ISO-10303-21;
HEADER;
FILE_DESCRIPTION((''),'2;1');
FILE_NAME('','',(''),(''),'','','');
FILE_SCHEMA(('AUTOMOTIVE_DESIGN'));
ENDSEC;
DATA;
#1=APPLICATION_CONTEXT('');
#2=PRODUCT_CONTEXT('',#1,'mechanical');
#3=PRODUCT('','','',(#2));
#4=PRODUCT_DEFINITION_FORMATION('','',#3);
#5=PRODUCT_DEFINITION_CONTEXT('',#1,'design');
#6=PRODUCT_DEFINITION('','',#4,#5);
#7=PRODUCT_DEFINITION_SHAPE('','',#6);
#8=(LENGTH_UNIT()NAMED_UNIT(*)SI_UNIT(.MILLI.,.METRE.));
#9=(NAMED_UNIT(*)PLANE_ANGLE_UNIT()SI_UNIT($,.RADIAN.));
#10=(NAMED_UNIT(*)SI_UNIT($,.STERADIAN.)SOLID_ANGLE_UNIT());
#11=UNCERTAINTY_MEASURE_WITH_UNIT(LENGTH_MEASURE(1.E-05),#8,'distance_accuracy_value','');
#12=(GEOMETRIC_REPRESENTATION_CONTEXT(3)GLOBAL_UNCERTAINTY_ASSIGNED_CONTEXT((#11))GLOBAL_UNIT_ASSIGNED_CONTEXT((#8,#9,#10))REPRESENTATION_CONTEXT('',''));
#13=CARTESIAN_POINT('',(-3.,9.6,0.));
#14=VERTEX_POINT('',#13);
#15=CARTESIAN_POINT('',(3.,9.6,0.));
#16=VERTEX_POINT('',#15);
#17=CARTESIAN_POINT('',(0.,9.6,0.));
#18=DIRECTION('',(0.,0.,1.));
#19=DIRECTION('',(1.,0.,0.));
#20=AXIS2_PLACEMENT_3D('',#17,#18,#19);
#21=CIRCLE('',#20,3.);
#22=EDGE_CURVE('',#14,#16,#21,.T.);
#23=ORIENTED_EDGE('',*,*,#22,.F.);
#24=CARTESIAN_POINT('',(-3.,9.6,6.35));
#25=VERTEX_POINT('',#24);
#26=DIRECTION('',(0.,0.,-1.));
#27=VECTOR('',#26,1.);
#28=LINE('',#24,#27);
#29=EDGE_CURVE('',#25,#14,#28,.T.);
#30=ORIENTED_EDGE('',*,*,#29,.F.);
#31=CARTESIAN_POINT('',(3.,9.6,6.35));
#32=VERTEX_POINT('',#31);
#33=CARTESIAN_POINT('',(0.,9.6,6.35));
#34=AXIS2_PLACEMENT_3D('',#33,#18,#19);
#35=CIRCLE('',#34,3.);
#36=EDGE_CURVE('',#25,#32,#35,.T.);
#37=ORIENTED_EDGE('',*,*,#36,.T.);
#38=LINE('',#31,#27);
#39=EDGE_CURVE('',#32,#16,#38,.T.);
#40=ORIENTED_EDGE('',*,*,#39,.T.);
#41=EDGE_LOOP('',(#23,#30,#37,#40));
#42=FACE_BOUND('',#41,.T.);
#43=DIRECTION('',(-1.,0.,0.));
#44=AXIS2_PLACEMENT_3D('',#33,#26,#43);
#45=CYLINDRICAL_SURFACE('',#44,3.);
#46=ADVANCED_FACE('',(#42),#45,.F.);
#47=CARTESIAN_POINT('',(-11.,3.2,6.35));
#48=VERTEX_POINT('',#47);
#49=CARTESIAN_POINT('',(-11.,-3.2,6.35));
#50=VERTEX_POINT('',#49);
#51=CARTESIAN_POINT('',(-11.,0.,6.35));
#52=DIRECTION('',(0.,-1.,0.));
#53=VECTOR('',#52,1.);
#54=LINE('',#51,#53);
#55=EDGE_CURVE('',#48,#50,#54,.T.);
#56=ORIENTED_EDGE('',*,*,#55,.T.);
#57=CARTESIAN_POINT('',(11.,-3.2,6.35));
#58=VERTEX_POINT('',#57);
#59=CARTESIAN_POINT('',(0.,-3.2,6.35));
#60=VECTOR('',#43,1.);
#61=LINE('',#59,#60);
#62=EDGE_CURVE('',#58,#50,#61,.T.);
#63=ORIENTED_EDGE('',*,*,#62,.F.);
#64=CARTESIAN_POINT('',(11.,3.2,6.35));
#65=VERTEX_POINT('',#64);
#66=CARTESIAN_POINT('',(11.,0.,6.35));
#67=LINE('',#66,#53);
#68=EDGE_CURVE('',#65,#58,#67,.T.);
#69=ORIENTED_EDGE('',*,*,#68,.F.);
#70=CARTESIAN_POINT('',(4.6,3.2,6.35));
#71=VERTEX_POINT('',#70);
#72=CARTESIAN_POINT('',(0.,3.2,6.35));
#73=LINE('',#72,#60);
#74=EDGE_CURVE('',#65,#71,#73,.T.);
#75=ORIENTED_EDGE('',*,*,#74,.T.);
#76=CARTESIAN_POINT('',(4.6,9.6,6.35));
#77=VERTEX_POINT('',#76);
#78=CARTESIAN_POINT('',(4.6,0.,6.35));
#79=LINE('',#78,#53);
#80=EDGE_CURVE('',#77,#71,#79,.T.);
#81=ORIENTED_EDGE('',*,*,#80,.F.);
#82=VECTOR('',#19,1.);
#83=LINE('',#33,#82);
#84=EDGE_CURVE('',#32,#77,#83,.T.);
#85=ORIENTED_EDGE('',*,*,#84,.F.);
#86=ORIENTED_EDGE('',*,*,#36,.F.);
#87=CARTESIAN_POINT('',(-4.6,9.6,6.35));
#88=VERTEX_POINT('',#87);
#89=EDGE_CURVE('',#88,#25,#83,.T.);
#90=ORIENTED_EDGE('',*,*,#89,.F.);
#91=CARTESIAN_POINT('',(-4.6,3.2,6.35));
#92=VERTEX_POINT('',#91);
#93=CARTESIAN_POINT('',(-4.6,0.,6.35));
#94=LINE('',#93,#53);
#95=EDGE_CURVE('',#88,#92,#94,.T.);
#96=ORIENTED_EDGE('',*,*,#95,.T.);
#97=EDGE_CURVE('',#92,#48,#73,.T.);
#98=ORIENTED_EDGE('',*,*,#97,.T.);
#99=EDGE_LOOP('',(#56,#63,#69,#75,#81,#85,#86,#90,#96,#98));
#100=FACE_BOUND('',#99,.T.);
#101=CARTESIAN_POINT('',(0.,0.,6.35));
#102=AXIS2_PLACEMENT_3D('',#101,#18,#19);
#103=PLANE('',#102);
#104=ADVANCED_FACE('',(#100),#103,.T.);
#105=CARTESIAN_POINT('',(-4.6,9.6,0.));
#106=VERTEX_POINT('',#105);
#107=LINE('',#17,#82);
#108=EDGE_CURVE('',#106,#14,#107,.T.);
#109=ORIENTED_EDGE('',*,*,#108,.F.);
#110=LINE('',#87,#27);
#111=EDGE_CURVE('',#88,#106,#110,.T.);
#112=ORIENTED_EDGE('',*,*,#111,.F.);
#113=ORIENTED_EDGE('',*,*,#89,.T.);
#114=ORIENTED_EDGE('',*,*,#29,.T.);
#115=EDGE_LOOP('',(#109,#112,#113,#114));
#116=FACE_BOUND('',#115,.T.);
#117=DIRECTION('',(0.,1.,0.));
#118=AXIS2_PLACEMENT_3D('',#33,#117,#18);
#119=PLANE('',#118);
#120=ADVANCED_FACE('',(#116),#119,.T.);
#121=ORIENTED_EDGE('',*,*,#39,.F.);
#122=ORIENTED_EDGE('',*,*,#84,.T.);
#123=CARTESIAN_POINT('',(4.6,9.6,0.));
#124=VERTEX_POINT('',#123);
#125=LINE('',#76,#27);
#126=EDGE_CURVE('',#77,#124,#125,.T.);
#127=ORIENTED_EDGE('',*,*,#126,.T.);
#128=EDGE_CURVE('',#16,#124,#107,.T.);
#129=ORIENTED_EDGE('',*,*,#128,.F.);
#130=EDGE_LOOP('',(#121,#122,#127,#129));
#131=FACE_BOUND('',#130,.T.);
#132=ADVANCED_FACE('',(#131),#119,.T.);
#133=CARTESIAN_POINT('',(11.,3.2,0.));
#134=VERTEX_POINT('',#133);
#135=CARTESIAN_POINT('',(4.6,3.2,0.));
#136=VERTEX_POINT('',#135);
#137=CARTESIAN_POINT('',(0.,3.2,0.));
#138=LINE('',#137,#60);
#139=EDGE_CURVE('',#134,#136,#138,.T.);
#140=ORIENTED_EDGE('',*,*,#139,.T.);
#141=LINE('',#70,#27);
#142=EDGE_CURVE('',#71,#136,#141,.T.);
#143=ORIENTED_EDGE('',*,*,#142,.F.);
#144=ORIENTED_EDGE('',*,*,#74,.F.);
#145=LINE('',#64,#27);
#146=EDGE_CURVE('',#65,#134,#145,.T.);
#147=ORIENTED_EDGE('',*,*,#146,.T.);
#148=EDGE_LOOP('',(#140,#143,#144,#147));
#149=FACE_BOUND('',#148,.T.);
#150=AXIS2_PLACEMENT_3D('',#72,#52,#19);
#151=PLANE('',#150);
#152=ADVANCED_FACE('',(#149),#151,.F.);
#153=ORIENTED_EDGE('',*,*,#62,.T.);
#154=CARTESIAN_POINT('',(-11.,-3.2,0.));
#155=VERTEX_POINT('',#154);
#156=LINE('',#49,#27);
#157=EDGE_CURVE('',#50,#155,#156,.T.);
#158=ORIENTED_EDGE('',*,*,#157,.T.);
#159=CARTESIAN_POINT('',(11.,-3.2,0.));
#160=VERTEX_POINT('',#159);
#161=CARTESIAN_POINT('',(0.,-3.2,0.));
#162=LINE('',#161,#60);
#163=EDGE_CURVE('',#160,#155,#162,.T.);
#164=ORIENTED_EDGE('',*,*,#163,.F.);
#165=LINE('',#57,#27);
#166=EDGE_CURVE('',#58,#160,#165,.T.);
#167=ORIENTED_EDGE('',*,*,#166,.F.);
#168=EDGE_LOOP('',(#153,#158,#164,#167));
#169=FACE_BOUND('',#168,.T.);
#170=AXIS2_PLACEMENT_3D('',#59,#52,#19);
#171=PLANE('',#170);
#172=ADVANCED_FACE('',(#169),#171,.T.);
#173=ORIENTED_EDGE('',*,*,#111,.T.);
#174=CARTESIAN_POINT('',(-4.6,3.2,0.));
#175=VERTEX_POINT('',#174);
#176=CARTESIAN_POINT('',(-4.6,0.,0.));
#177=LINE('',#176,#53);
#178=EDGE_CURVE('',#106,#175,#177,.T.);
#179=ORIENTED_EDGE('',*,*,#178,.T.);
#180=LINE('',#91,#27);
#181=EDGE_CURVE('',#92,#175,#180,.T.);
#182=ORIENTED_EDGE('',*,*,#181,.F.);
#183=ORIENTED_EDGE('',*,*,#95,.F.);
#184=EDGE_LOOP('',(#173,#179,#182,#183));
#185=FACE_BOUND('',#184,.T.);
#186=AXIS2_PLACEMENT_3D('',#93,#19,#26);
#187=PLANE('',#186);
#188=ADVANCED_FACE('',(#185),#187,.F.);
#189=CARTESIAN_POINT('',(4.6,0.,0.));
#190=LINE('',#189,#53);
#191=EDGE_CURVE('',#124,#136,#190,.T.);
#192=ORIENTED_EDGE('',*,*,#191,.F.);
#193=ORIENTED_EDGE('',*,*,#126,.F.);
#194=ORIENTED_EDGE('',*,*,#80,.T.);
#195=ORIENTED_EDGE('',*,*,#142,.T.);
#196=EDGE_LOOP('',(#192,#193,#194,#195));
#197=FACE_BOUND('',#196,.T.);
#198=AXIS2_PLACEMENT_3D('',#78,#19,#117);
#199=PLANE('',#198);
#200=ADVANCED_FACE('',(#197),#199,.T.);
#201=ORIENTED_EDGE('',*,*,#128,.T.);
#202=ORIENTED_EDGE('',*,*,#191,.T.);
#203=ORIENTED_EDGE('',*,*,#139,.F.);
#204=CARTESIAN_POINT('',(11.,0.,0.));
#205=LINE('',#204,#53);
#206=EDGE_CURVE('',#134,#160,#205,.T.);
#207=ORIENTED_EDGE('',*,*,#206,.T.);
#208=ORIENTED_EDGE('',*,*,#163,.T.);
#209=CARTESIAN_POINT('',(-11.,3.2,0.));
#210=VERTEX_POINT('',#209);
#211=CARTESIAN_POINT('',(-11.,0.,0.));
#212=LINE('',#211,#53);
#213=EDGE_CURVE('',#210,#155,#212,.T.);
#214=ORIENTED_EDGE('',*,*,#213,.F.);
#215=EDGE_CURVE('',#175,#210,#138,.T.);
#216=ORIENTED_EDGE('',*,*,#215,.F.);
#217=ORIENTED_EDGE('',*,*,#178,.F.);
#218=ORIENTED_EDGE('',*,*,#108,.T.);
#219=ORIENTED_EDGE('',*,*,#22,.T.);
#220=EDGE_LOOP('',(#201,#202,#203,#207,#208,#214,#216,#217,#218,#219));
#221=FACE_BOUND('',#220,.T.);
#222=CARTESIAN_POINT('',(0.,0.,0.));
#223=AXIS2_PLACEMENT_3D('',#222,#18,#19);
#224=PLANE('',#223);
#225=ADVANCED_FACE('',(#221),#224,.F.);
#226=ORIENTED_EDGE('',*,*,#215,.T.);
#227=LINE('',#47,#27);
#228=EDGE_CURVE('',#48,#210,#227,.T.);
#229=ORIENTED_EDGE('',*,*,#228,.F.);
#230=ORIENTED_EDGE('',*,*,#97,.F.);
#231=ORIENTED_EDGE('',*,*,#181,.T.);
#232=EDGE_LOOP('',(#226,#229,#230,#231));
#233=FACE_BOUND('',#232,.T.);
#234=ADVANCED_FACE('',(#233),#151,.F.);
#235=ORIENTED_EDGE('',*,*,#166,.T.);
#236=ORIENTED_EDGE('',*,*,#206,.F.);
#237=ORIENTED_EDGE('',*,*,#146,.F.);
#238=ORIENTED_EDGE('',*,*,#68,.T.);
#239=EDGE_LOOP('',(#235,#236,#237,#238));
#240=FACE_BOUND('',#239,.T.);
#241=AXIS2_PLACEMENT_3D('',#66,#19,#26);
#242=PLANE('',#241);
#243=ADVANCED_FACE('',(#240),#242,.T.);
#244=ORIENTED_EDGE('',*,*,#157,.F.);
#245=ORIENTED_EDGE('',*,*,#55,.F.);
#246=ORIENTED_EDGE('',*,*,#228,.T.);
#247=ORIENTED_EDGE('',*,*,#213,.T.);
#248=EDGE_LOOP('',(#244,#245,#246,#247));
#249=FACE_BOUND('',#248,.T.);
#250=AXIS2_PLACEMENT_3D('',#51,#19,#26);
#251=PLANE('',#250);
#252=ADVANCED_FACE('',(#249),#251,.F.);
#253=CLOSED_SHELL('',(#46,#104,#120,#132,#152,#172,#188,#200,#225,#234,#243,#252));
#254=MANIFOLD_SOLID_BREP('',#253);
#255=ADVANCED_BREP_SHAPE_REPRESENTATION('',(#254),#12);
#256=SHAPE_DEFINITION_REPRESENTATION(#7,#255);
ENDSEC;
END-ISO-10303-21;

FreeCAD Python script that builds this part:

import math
import FreeCAD as App
import Part
import Sketcher
from FreeCAD import Vector

doc = App.newDocument("Part")
body = doc.addObject("PartDesign::Body", "Body")

# Sketch on XY plane
sketch1 = doc.addObject("Sketcher::SketchObject", "Sketch")
body.addObject(sketch1)
sketch1.AttachmentSupport = (doc.XY_Plane, [""])
sketch1.MapMode = "FlatFace"
sketch1.addGeometry(Part.LineSegment(Vector(-3, 9.6, 0), Vector(-4.6, 9.6, 0)), False)
sketch1.addGeometry(Part.LineSegment(Vector(-4.6, 9.6, 0), Vector(-4.6, 3.2, 0)), False)
sketch1.addGeometry(Part.LineSegment(Vector(-4.6, 3.2, 0), Vector(-11, 3.2, 0)), False)
sketch1.addGeometry(Part.LineSegment(Vector(-11, 3.2, 0), Vector(-11, -3.2, 0)), False)
sketch1.addGeometry(Part.LineSegment(Vector(-11, -3.2, 0), Vector(11, -3.2, 0)), False)
sketch1.addGeometry(Part.LineSegment(Vector(11, -3.2, 0), Vector(11, 3.2, 0)), False)
sketch1.addGeometry(Part.LineSegment(Vector(11, 3.2, 0), Vector(4.6, 3.2, 0)), False)
sketch1.addGeometry(Part.LineSegment(Vector(4.6, 3.2, 0), Vector(4.6, 9.6, 0)), False)
sketch1.addGeometry(Part.LineSegment(Vector(4.6, 9.6, 0), Vector(3, 9.6, 0)), False)
sketch1.addGeometry(Part.ArcOfCircle(Part.Circle(Vector(0, 9.6, 0), Vector(0, 0, 1), 3), math.radians(180), math.radians(360)), False)
sketch1.addConstraint(Sketcher.Constraint("Coincident", 0, 2, 1, 1))
sketch1.addConstraint(Sketcher.Constraint("Coincident", 1, 2, 2, 1))
sketch1.addConstraint(Sketcher.Constraint("Coincident", 2, 2, 3, 1))
sketch1.addConstraint(Sketcher.Constraint("Coincident", 3, 2, 4, 1))
sketch1.addConstraint(Sketcher.Constraint("Coincident", 4, 2, 5, 1))
sketch1.addConstraint(Sketcher.Constraint("Coincident", 5, 2, 6, 1))
sketch1.addConstraint(Sketcher.Constraint("Coincident", 6, 2, 7, 1))
sketch1.addConstraint(Sketcher.Constraint("Coincident", 7, 2, 8, 1))
sketch1.addConstraint(Sketcher.Constraint("Coincident", 8, 2, 9, 2))
sketch1.addConstraint(Sketcher.Constraint("Coincident", 9, 1, 0, 1))
sketch1.addConstraint(Sketcher.Constraint("Horizontal", 0))
sketch1.addConstraint(Sketcher.Constraint("Vertical", 1))
sketch1.addConstraint(Sketcher.Constraint("Horizontal", 2))
sketch1.addConstraint(Sketcher.Constraint("Vertical", 3))
sketch1.addConstraint(Sketcher.Constraint("Horizontal", 4))
sketch1.addConstraint(Sketcher.Constraint("Vertical", 5))
sketch1.addConstraint(Sketcher.Constraint("Horizontal", 6))
sketch1.addConstraint(Sketcher.Constraint("Vertical", 7))
sketch1.addConstraint(Sketcher.Constraint("Horizontal", 8))
sketch1.addConstraint(Sketcher.Constraint("Symmetric", 2, 2, 4, 2, -1, 1))
sketch1.addConstraint(Sketcher.Constraint("Symmetric", 1, 2, 6, 2, -2))
sketch1.addConstraint(Sketcher.Constraint("Symmetric", 8, 2, 9, 1, -2))
sketch1.addConstraint(Sketcher.Constraint("Horizontal", 9, 3, 0, 2))
sketch1.addConstraint(Sketcher.Constraint("Equal", 6, 1))
sketch1.addConstraint(Sketcher.Constraint("Equal", 1, 3))
sketch1.addConstraint(Sketcher.Constraint("Radius", 9, 3.0))
sketch1.addConstraint(Sketcher.Constraint("DistanceX", 4, 1, 4, 2, 22.0))
sketch1.addConstraint(Sketcher.Constraint("DistanceX", 0, 2, 0, 1, 1.6))
pad1 = doc.addObject("PartDesign::Pad", "Pad")
body.addObject(pad1)
pad1.Profile = sketch1
pad1.Length = 6.35

doc.recompute()
